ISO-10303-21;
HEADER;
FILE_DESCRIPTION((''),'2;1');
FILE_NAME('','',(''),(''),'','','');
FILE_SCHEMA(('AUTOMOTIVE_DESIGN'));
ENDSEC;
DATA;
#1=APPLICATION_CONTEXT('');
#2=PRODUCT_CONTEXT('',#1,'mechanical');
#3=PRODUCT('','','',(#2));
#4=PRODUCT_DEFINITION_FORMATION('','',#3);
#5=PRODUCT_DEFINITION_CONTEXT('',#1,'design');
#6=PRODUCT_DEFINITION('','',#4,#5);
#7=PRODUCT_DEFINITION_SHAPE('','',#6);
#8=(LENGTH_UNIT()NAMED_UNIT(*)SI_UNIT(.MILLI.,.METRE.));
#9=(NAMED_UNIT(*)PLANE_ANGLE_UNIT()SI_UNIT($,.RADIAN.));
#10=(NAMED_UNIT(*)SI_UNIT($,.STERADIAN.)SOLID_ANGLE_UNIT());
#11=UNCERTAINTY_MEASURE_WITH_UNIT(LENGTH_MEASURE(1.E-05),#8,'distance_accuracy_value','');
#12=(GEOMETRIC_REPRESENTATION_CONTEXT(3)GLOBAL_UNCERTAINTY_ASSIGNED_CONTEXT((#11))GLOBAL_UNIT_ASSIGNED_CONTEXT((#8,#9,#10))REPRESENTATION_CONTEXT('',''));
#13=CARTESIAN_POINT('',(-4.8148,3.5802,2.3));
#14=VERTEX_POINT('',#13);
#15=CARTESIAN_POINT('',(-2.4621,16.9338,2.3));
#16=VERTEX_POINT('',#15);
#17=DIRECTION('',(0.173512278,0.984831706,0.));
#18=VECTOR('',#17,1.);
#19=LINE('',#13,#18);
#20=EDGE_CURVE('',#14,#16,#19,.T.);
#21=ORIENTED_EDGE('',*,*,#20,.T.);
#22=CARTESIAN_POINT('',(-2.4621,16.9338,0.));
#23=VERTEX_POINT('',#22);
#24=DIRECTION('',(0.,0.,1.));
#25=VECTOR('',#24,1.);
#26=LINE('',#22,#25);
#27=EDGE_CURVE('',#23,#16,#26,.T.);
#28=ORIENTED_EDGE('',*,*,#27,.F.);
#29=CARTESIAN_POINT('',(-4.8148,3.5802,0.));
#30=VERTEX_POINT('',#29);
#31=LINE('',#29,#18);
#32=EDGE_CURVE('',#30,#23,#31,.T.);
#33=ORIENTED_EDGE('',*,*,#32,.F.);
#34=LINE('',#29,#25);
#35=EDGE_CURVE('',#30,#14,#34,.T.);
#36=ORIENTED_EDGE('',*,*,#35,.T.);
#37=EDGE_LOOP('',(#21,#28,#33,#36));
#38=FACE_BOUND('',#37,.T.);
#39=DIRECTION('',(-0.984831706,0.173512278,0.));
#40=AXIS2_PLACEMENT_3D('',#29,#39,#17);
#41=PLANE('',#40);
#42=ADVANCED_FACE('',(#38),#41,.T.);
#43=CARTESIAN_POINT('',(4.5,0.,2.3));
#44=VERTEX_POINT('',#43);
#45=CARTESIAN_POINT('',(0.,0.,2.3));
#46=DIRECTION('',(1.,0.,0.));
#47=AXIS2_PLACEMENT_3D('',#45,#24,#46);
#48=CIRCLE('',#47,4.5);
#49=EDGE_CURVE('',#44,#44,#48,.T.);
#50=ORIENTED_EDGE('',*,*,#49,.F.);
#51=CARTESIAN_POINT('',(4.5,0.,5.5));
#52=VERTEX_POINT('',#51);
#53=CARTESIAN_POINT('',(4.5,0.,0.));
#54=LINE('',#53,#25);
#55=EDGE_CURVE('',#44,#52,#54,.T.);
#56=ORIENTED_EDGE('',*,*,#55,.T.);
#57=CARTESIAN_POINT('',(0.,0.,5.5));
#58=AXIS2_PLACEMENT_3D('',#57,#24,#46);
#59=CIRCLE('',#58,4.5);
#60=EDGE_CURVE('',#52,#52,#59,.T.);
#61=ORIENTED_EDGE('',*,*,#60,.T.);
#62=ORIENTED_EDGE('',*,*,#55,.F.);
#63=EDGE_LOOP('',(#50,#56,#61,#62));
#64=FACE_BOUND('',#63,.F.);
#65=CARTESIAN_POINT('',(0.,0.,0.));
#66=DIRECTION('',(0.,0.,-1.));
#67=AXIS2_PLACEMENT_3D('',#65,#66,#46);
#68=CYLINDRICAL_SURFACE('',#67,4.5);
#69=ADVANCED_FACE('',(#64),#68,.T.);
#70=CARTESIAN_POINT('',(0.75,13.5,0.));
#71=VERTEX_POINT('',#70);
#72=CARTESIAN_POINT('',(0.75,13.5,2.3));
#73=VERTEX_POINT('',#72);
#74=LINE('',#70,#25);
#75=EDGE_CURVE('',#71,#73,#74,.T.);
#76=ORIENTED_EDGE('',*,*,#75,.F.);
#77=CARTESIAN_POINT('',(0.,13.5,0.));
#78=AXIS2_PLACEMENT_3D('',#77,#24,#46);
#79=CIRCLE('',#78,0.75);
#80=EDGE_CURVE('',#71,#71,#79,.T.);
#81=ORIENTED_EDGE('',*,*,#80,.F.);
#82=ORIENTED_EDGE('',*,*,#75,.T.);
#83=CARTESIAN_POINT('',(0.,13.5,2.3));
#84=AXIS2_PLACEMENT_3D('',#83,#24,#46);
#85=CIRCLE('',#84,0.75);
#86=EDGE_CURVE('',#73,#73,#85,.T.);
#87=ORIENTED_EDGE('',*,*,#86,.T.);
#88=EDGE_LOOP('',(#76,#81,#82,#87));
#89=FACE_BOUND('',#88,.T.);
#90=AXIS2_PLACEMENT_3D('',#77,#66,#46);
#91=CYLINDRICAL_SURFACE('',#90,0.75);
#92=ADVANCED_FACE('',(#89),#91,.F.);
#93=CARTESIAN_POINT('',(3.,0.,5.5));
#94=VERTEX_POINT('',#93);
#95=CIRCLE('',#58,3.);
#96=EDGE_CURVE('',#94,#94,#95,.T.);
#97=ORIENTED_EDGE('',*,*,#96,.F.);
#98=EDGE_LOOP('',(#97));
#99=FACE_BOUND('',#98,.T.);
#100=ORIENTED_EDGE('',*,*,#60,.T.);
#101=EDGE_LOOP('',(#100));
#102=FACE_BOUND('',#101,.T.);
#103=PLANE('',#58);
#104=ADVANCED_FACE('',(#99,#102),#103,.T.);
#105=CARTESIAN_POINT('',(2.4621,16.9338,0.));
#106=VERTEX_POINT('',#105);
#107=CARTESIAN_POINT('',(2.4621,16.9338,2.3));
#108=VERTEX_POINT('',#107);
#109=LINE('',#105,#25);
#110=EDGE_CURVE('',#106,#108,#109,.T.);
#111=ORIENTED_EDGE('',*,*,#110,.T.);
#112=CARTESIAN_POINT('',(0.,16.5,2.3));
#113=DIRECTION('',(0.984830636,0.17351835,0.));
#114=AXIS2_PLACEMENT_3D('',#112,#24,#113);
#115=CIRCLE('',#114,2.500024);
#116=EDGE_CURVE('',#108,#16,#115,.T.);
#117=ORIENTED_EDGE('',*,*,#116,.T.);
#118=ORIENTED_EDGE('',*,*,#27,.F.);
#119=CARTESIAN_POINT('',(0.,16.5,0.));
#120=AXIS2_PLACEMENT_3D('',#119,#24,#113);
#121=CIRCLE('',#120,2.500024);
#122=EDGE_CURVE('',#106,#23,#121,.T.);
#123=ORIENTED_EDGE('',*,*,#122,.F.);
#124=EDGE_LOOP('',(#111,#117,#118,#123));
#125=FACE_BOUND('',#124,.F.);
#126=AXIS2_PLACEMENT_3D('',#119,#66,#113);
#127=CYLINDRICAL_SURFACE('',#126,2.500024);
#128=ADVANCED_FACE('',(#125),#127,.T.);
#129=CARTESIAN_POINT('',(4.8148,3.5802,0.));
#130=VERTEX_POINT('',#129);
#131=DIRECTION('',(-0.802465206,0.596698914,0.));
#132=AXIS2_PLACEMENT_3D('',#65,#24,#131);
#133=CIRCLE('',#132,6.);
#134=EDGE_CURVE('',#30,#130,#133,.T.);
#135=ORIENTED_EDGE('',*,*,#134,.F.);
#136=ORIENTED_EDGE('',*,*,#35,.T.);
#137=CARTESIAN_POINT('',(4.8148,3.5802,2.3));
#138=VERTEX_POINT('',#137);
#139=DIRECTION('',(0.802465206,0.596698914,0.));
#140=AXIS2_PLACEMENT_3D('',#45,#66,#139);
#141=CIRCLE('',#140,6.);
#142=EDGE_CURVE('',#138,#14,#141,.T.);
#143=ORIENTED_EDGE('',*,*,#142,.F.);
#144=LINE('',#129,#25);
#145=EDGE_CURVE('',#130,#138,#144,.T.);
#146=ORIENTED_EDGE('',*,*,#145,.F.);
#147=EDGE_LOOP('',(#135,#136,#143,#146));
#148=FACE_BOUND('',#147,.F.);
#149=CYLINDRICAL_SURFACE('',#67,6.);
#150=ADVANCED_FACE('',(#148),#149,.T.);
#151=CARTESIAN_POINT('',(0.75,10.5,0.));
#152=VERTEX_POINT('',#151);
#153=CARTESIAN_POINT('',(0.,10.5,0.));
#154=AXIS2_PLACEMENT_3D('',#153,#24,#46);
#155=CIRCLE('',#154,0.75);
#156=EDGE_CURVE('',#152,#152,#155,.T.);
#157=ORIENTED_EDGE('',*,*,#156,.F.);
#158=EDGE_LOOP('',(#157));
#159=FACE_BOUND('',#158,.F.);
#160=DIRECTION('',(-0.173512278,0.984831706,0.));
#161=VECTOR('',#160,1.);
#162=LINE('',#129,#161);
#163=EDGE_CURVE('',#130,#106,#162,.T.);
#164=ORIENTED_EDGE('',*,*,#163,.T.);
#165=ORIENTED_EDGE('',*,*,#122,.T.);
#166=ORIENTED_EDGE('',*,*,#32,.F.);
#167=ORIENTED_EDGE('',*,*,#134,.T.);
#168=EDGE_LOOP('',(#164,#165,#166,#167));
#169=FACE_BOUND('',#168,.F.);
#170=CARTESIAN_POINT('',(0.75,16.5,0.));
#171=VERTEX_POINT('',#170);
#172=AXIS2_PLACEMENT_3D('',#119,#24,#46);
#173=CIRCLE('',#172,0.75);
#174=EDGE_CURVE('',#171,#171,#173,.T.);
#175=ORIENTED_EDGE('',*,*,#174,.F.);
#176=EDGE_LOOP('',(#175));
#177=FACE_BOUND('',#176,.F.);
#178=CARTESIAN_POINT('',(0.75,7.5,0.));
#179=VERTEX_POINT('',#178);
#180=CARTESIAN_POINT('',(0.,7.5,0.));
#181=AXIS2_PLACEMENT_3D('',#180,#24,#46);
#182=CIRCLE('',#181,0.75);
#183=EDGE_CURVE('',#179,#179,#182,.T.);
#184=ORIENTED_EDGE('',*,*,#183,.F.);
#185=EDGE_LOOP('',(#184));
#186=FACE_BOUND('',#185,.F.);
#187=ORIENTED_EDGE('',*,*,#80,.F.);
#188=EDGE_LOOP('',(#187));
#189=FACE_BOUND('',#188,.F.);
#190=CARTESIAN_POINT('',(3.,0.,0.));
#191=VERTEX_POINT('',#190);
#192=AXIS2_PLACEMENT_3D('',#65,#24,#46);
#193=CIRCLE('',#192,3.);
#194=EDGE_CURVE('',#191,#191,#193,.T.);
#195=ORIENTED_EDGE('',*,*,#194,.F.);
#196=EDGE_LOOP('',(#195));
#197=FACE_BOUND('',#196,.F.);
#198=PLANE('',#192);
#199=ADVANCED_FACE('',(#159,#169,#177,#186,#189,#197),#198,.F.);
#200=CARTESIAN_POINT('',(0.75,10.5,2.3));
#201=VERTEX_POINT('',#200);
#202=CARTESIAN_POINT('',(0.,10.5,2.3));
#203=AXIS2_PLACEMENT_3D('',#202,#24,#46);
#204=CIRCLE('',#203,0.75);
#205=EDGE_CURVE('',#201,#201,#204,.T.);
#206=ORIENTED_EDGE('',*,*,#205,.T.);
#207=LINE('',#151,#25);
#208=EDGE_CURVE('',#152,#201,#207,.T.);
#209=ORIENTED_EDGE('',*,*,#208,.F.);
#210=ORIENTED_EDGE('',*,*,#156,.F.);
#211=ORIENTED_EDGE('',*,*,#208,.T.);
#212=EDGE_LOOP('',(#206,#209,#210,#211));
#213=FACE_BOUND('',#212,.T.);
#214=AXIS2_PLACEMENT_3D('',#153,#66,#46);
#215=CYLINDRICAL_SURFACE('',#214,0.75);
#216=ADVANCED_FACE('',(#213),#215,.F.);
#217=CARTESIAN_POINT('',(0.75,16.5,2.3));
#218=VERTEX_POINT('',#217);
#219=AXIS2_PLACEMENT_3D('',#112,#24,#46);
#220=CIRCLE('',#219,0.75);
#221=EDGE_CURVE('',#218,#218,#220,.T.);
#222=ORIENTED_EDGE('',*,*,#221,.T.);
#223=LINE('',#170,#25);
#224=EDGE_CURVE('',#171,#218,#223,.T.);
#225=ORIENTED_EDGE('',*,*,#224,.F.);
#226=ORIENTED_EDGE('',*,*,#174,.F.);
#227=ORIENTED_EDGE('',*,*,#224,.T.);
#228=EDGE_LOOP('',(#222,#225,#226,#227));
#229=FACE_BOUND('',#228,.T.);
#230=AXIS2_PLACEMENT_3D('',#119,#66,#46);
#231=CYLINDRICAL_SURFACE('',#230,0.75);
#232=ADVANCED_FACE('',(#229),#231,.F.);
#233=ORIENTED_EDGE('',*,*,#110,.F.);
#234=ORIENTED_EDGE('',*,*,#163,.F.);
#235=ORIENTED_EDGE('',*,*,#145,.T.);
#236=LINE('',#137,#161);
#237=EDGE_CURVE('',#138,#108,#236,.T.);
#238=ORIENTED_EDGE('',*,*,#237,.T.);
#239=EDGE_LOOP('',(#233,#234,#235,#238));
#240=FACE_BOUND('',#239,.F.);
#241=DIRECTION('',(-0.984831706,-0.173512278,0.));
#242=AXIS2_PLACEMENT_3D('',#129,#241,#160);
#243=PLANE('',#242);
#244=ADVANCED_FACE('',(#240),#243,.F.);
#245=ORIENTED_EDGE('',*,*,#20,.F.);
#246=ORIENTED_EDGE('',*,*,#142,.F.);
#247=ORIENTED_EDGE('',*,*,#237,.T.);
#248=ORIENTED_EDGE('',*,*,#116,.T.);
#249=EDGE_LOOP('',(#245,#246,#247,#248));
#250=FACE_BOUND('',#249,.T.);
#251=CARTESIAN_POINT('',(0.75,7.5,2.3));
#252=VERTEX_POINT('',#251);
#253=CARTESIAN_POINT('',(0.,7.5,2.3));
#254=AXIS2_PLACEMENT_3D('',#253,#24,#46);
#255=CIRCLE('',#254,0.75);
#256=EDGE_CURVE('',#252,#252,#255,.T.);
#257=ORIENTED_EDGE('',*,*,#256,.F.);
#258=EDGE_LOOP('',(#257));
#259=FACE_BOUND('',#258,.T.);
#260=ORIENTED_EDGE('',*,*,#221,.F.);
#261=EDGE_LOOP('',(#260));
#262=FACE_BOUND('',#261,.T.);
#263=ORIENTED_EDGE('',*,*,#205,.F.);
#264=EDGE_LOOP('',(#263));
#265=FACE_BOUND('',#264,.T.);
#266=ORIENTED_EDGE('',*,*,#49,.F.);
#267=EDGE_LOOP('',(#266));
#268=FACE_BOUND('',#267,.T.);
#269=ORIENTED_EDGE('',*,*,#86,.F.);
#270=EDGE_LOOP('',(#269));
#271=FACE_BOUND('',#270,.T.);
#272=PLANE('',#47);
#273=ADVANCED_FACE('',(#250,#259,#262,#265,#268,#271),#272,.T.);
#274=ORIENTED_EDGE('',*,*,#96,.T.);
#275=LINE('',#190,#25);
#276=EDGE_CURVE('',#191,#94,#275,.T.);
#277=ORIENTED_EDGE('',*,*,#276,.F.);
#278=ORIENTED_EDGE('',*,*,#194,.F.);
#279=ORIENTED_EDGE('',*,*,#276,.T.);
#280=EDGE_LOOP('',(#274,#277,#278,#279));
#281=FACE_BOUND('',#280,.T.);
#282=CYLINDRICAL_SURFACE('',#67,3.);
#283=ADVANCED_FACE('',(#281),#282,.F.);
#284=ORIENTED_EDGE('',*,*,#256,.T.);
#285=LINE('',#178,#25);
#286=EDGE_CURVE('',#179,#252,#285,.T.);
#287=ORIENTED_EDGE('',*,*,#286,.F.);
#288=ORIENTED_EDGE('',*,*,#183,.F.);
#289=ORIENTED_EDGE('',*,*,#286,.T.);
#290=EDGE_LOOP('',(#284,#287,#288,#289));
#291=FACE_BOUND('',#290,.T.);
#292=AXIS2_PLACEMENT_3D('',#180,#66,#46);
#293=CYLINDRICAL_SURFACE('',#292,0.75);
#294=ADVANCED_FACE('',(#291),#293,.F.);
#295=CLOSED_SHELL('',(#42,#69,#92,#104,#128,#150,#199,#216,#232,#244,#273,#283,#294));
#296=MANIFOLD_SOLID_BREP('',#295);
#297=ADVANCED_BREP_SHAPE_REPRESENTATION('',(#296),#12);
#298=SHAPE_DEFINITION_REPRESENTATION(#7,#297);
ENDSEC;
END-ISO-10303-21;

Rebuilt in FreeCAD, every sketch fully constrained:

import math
import FreeCAD as App
import Part
import Sketcher
from FreeCAD import Vector
Q = App.Units.Quantity

doc = App.newDocument("Part")
body = doc.addObject("PartDesign::Body", "Body")

# Sketch on XY plane
sketch1 = body.newObject("Sketcher::SketchObject", "Sketch")
sketch1.AttachmentSupport = (doc.getObject("XY_Plane"), [""])
sketch1.MapMode = "FlatFace"
sketch1.addGeometry(Part.ArcOfCircle(Part.Circle(Vector(0, 0, 0), Vector(0, 0, 1), 6), math.radians(143.366161), math.radians(396.633839)), False)
sketch1.addGeometry(Part.LineSegment(Vector(4.8148, 3.5802, 0), Vector(2.4621, 16.9338, 0)), False)
sketch1.addGeometry(Part.ArcOfCircle(Part.Circle(Vector(0, 16.5, 0), Vector(0, 0, 1), 2.500024), math.radians(9.992447), math.radians(170.007553)), False)
sketch1.addGeometry(Part.LineSegment(Vector(-2.4621, 16.9338, 0), Vector(-4.8148, 3.5802, 0)), False)
sketch1.addGeometry(Part.Circle(Vector(0, 0, 0), Vector(0, 0, 1), 4.5), False)
sketch1.addGeometry(Part.Circle(Vector(0, 16.5, 0), Vector(0, 0, 1), 0.75), False)
sketch1.addGeometry(Part.Circle(Vector(0, 7.5, 0), Vector(0, 0, 1), 0.75), False)
sketch1.addGeometry(Part.Circle(Vector(0, 10.5, 0), Vector(0, 0, 1), 0.75), False)
sketch1.addGeometry(Part.Circle(Vector(0, 13.5, 0), Vector(0, 0, 1), 0.75), False)
sketch1.addConstraint(Sketcher.Constraint("Coincident", 0, 2, 1, 1))
sketch1.addConstraint(Sketcher.Constraint("Coincident", 1, 2, 2, 1))
sketch1.addConstraint(Sketcher.Constraint("Coincident", 2, 2, 3, 1))
sketch1.addConstraint(Sketcher.Constraint("Coincident", 3, 2, 0, 1))
sketch1.addConstraint(Sketcher.Constraint("Coincident", 0, 3, -1, 1))
sketch1.addConstraint(Sketcher.Constraint("Coincident", 4, 3, -1, 1))
sketch1.addConstraint(Sketcher.Constraint("Coincident", 5, 3, 2, 3))
sketch1.addConstraint(Sketcher.Constraint("PointOnObject", 2, 3, -2))
sketch1.addConstraint(Sketcher.Constraint("PointOnObject", 6, 3, -2))
sketch1.addConstraint(Sketcher.Constraint("PointOnObject", 7, 3, -2))
sketch1.addConstraint(Sketcher.Constraint("PointOnObject", 8, 3, -2))
sketch1.addConstraint(Sketcher.Constraint("Diameter", 4, Q("9 mm")))
sketch1.addConstraint(Sketcher.Constraint("Radius", 0, Q("6 mm")))
sketch1.addConstraint(Sketcher.Constraint("Diameter", 5, Q("1.5 mm")))
sketch1.addConstraint(Sketcher.Constraint("Diameter", 6, Q("1.5 mm")))
sketch1.addConstraint(Sketcher.Constraint("Diameter", 7, Q("1.5 mm")))
sketch1.addConstraint(Sketcher.Constraint("Diameter", 8, Q("1.5 mm")))
sketch1.addConstraint(Sketcher.Constraint("Radius", 2, Q("2.5 mm")))
sketch1.addConstraint(Sketcher.Constraint("DistanceY", 6, 3, 2, 3, Q("9 mm")))
sketch1.addConstraint(Sketcher.Constraint("DistanceY", 7, 3, 2, 3, Q("6 mm")))
sketch1.addConstraint(Sketcher.Constraint("DistanceY", 6, 3, 8, 3, Q("6 mm")))
sketch1.addConstraint(Sketcher.Constraint("DistanceY", -1, 1, 2, 3, Q("16.5 mm")))
sketch1.addConstraint(Sketcher.Constraint("DistanceX", -1, 1, 1, 2, Q("2.462 mm")))
sketch1.addConstraint(Sketcher.Constraint("DistanceX", 2, 2, -1, 1, Q("2.462 mm")))
sketch1.addConstraint(Sketcher.Constraint("Distance", 1, Q("13.5593 mm")))
sketch1.addConstraint(Sketcher.Constraint("Distance", 3, Q("13.5593 mm")))
pad1 = body.newObject("PartDesign::Pad", "Pad")
pad1.Profile = sketch1
pad1.Length = 2.3

# Sketch on XY plane
sketch2 = body.newObject("Sketcher::SketchObject", "Sketch001")
sketch2.AttachmentSupport = (doc.getObject("XY_Plane"), [""])
sketch2.MapMode = "FlatFace"
sketch2.addGeometry(Part.Circle(Vector(0, 0, 0), Vector(0, 0, 1), 4.5), False)
sketch2.addGeometry(Part.Circle(Vector(0, 0, 0), Vector(0, 0, 1), 3), False)
sketch2.addConstraint(Sketcher.Constraint("Coincident", 0, 3, -1, 1))
sketch2.addConstraint(Sketcher.Constraint("Coincident", 1, 3, -1, 1))
sketch2.addConstraint(Sketcher.Constraint("Diameter", 0, Q("9 mm")))
sketch2.addConstraint(Sketcher.Constraint("Diameter", 1, Q("6 mm")))
pad2 = body.newObject("PartDesign::Pad", "Pad001")
pad2.Profile = sketch2
pad2.Length = 5.5

doc.recompute()
